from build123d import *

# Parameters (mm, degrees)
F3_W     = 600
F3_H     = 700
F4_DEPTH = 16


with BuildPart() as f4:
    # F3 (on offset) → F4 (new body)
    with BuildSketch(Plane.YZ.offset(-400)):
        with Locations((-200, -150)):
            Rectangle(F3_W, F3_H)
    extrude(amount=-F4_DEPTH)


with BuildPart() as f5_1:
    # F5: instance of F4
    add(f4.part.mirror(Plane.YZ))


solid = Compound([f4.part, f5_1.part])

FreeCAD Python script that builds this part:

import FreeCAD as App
import Part
import Sketcher

V = App.Vector


def add_polygon(sketch, points):
    """Adds a closed chain of lines whose ends are joined by coincident constraints."""
    first, n = sketch.GeometryCount, len(points)
    for a, b in zip(points, points[1:] + points[:1]):
        sketch.addGeometry(Part.LineSegment(App.Vector(*a, 0), App.Vector(*b, 0)), False)
    for i in range(n):
        sketch.addConstraint(Sketcher.Constraint("Coincident", first + i, 2, first + (i + 1) % n, 1))

doc = App.newDocument("Part")
body = doc.addObject("PartDesign::Body", "Body")

sketch1 = body.newObject("Sketcher::SketchObject", "Sketch")
sketch1.AttachmentSupport = (doc.getObject("YZ_Plane"), [""])
sketch1.MapMode = "FlatFace"
sketch1.AttachmentOffset = App.Placement(V(0, 0, -400), App.Rotation())
add_polygon(sketch1, [(-500, 200), (-500, -500), (100, -500), (100, 200)])
sketch1.addConstraint([
    Sketcher.Constraint("Vertical", 0),
    Sketcher.Constraint("Horizontal", 1),
    Sketcher.Constraint("Vertical", 2),
    Sketcher.Constraint("Horizontal", 3),
    Sketcher.Constraint("DistanceX", 1, 1, 1, 2, 600.0),
    Sketcher.Constraint("DistanceY", 0, 2, 0, 1, 700.0),
    Sketcher.Constraint("DistanceX", 0, 2, -1, 1, 500.0),
    Sketcher.Constraint("DistanceY", 0, 2, -1, 1, 500.0),
])
pad1 = body.newObject("PartDesign::Pad", "Pad")
pad1.Profile = sketch1
pad1.Length = 16
pad1.Reversed = True
body2 = doc.addObject("PartDesign::Body", "Body001")
doc.recompute()

mirroring = doc.addObject("Part::Mirroring", "Mirroring")
mirroring.Source = body
mirroring.Base = V(0, 0, 0)
mirroring.Normal = V(1, 0, 0)
body2.BaseFeature = mirroring
doc.recompute()
mirroring.Visibility = False

doc.recompute()
